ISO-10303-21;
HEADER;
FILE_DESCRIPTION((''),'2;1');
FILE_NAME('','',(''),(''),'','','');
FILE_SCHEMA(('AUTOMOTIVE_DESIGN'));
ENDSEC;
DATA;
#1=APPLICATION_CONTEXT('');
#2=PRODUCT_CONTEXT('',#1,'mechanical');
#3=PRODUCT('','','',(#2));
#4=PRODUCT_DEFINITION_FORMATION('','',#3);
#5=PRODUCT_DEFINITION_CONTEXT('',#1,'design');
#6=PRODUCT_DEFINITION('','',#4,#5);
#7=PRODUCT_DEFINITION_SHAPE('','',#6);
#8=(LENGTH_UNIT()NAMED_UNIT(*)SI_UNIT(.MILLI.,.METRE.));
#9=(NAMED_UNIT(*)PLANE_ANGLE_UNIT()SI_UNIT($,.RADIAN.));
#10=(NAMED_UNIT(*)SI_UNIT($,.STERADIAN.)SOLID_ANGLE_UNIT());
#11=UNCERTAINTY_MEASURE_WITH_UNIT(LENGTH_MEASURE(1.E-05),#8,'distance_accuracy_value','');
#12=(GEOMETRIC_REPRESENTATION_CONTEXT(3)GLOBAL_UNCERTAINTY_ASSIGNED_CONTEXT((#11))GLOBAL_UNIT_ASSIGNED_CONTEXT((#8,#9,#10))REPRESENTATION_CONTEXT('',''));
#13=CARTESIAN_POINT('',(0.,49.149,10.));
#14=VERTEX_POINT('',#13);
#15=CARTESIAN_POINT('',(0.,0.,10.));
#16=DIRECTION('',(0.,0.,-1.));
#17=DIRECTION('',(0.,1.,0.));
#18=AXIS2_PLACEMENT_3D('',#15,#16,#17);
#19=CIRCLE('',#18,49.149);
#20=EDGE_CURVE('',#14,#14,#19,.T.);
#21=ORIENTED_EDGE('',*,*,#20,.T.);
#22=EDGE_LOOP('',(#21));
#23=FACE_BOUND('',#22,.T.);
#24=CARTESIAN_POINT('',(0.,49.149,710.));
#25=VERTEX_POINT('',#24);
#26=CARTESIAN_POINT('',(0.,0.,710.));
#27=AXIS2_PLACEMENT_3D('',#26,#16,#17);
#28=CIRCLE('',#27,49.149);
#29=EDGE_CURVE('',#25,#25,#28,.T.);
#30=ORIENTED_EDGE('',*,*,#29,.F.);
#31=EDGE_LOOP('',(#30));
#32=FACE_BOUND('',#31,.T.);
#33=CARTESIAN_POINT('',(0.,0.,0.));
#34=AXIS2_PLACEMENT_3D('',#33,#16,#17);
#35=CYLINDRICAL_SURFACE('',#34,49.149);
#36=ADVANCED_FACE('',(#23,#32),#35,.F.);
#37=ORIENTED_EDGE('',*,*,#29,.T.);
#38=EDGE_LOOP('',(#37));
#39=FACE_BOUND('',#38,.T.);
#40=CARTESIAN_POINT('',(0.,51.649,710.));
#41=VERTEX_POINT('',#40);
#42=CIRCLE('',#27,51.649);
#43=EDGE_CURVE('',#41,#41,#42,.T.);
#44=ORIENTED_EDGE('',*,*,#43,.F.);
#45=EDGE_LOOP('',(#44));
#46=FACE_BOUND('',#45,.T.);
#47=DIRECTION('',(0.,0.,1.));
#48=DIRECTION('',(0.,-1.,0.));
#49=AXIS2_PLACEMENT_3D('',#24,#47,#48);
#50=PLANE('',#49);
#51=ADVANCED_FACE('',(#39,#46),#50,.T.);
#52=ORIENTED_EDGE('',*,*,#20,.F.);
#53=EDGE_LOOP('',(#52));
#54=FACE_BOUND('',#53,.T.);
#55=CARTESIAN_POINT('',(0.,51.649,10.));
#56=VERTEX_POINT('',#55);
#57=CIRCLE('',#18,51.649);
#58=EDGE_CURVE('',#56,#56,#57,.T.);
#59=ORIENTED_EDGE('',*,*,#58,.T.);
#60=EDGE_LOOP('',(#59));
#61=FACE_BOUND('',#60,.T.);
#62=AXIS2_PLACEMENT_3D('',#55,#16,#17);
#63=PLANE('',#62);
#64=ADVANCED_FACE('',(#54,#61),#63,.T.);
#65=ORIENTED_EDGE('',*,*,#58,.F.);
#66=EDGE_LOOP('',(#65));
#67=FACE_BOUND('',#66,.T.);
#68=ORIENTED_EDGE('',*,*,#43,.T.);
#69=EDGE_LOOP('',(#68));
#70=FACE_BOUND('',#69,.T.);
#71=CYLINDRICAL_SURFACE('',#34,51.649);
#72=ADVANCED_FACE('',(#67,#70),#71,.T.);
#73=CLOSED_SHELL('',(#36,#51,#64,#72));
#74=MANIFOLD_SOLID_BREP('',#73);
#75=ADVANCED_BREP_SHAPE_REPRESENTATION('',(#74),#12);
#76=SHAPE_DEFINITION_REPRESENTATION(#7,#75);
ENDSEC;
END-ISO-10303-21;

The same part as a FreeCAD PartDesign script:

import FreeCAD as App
import Part
import Sketcher
from FreeCAD import Vector
Q = App.Units.Quantity


def add_polygon(sketch, points):
    """Adds a closed chain of lines whose ends are joined by coincident constraints."""
    first, n = sketch.GeometryCount, len(points)
    for a, b in zip(points, points[1:] + points[:1]):
        sketch.addGeometry(Part.LineSegment(App.Vector(*a, 0), App.Vector(*b, 0)), False)
    for i in range(n):
        sketch.addConstraint(Sketcher.Constraint("Coincident", first + i, 2, first + (i + 1) % n, 1))

doc = App.newDocument("Part")
body = doc.addObject("PartDesign::Body", "Body")

sketch1 = body.newObject("Sketcher::SketchObject", "Sketch")
sketch1.AttachmentSupport = (doc.getObject("YZ_Plane"), [""])
sketch1.MapMode = "FlatFace"
add_polygon(sketch1, [(51.649, 710), (49.149, 710), (49.149, 10), (51.649, 10)])
sketch1.addConstraint([
    Sketcher.Constraint("Horizontal", 0),
    Sketcher.Constraint("Vertical", 1),
    Sketcher.Constraint("Horizontal", 2),
    Sketcher.Constraint("Vertical", 3),
    Sketcher.Constraint("DistanceY", 1, 2, 1, 1, Q("700 mm")),
    Sketcher.Constraint("DistanceX", 0, 2, 0, 1, Q("2.5 mm")),
    Sketcher.Constraint("DistanceY", -1, 1, 0, 2, Q("710 mm")),
    Sketcher.Constraint("DistanceX", -1, 1, 0, 2, Q("49.149 mm")),
])
revolution = body.newObject("PartDesign::Revolution", "Revolution")
revolution.Profile = sketch1
revolution.ReferenceAxis = (sketch1, ["V_Axis"])
revolution.Angle = 360

doc.recompute()
